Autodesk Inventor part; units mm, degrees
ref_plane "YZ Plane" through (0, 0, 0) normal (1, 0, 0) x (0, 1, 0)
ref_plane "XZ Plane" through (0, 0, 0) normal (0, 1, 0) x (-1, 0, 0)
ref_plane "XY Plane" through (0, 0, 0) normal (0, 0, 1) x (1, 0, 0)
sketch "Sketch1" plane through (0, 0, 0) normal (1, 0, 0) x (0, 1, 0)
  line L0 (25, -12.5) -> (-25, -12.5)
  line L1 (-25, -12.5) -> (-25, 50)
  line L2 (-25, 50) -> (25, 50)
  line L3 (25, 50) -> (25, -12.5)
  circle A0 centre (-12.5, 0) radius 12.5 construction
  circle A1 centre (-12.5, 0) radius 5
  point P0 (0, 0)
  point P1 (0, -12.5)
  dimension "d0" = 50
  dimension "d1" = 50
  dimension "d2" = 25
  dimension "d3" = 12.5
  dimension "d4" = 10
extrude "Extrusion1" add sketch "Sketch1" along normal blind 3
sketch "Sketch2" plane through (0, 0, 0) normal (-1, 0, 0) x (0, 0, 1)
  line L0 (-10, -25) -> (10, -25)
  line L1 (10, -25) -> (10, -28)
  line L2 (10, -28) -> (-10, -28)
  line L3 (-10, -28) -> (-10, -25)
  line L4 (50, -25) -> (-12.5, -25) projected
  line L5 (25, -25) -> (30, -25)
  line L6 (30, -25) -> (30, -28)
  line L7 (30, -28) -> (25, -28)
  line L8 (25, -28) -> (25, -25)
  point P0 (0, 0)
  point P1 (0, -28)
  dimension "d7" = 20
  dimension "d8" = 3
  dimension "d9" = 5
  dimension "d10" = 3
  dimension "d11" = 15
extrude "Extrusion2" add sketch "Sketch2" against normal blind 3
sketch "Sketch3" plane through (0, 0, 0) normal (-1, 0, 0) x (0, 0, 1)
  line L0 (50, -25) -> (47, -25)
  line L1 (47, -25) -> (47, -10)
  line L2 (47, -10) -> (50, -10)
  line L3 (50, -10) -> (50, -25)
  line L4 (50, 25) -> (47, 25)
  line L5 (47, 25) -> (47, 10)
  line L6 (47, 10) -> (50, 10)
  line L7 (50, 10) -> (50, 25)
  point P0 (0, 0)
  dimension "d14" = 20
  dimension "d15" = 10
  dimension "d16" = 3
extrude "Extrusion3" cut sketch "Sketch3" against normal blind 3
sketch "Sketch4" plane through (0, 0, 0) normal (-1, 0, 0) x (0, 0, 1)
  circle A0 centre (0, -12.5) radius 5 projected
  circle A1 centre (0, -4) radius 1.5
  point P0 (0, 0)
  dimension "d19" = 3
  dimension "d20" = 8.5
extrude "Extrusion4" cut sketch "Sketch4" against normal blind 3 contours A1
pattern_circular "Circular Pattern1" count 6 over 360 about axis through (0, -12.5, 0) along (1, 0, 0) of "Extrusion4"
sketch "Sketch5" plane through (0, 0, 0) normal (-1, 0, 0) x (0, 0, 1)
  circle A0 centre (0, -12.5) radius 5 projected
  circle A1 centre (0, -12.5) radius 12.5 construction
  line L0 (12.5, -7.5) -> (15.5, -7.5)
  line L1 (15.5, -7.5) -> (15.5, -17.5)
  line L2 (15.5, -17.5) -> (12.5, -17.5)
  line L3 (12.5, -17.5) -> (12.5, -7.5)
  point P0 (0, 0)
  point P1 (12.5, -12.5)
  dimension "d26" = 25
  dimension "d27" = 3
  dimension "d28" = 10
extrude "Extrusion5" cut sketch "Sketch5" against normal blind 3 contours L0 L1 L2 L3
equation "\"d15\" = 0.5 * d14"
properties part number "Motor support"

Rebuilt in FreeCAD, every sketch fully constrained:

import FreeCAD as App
import Part
import Sketcher

V = App.Vector
Q = App.Units.Quantity


def add_polygon(sketch, points):
    """Adds a closed chain of lines whose ends are joined by coincident constraints."""
    first, n = sketch.GeometryCount, len(points)
    for a, b in zip(points, points[1:] + points[:1]):
        sketch.addGeometry(Part.LineSegment(App.Vector(*a, 0), App.Vector(*b, 0)), False)
    for i in range(n):
        sketch.addConstraint(Sketcher.Constraint("Coincident", first + i, 2, first + (i + 1) % n, 1))

doc = App.newDocument("Part")
params = doc.addObject("Spreadsheet::Sheet", "Params")
for row, (alias, value) in enumerate([
    ("sketch1_diameter", "10 mm"),
    ("sketch1_width", "50 mm"),
    ("pad1_length", "3 mm"),
    ("sketch2_width", "3 mm"),
    ("sketch2_height", "5 mm"),
    ("sketch2_height2", "20 mm"),
    ("pad2_length", "3 mm"),
    ("sketch3_height", "3 mm"),
    ("sketch3_width", "15 mm"),
    ("pocket1_length", "3 mm"),
    ("sketch4_diameter", "3 mm"),
    ("pocket2_length", "3 mm"),
    ("sketch5_width", "10 mm"),
    ("sketch5_height", "3 mm"),
    ("pocket3_length", "3 mm"),
], start=1):
    params.set(f"A{row}", alias)
    params.set(f"B{row}", "=" + value)
    params.setAlias(f"B{row}", alias)

body = doc.addObject("PartDesign::Body", "Body")

sketch1 = body.newObject("Sketcher::SketchObject", "Sketch")
sketch1.AttachmentSupport = (doc.getObject("YZ_Plane"), [""])
sketch1.MapMode = "FlatFace"
add_polygon(sketch1, [(-25, -12), (25, -12), (25, 50), (-25, 50)])
sketch1.addGeometry(Part.Circle(V(-12, 0, 0), V(0, 0, 1), 5), False)
sketch1.addConstraint([
    Sketcher.Constraint("Horizontal", 0),
    Sketcher.Constraint("Vertical", 1),
    Sketcher.Constraint("Horizontal", 2),
    Sketcher.Constraint("Vertical", 3),
    Sketcher.Constraint("PointOnObject", 4, 3, -1),
    Sketcher.Constraint("Diameter", 4, Q("10 mm")),
    Sketcher.Constraint("DistanceX", 0, 1, 0, 2, Q("50 mm")),
    Sketcher.Constraint("DistanceX", -1, 1, 0, 2, Q("25 mm")),
    Sketcher.Constraint("DistanceY", -1, 1, 1, 2, Q("50 mm")),
    Sketcher.Constraint("DistanceX", 4, 3, -1, 1, Q("12.5 mm")),
    Sketcher.Constraint("DistanceY", 0, 2, -1, 1, Q("12.5 mm")),
])
sketch1.setExpression("Constraints[9]", "Params.sketch1_diameter")
sketch1.setExpression("Constraints[10]", "Params.sketch1_width")
pad1 = body.newObject("PartDesign::Pad", "Pad")
pad1.Profile = sketch1
pad1.setExpression("Length", "Params.pad1_length")

sketch2 = body.newObject("Sketcher::SketchObject", "Sketch001")
sketch2.AttachmentSupport = (doc.getObject("YZ_Plane"), [""])
sketch2.MapMode = "FlatFace"
add_polygon(sketch2, [(-25, 30), (-25, 25), (-28, 25), (-28, 30)])
add_polygon(sketch2, [(-25, 10), (-25, -10), (-28, -10), (-28, 10)])
sketch2.addConstraint([
    Sketcher.Constraint("Vertical", 0),
    Sketcher.Constraint("Horizontal", 1),
    Sketcher.Constraint("Vertical", 2),
    Sketcher.Constraint("Horizontal", 3),
    Sketcher.Constraint("Vertical", 4),
    Sketcher.Constraint("Horizontal", 5),
    Sketcher.Constraint("Vertical", 6),
    Sketcher.Constraint("Horizontal", 7),
    Sketcher.Constraint("Vertical", 3, 2, 4, 2),
    Sketcher.Constraint("Vertical", 2, 2, 5, 2),
    Sketcher.Constraint("DistanceX", 1, 2, 1, 1, Q("3 mm")),
    Sketcher.Constraint("DistanceY", 0, 2, 0, 1, Q("5 mm")),
    Sketcher.Constraint("DistanceY", 4, 2, 4, 1, Q("20 mm")),
    Sketcher.Constraint("DistanceY", 6, 2, 1, 2, Q("15 mm")),
    Sketcher.Constraint("DistanceX", 0, 2, -1, 1, Q("25 mm")),
    Sketcher.Constraint("DistanceY", -1, 1, 0, 2, Q("25 mm")),
])
sketch2.setExpression("Constraints[18]", "Params.sketch2_width")
sketch2.setExpression("Constraints[19]", "Params.sketch2_height")
sketch2.setExpression("Constraints[20]", "Params.sketch2_height2")
pad2 = body.newObject("PartDesign::Pad", "Pad001")
pad2.Profile = sketch2
pad2.setExpression("Length", "Params.pad2_length")

sketch3 = body.newObject("Sketcher::SketchObject", "Sketch002")
sketch3.AttachmentSupport = (doc.getObject("YZ_Plane"), [""])
sketch3.MapMode = "FlatFace"
add_polygon(sketch3, [(-25, 47), (-25, 50), (-10, 50), (-10, 47)])
add_polygon(sketch3, [(10, 50), (25, 50), (25, 47), (10, 47)])
sketch3.addConstraint([
    Sketcher.Constraint("Vertical", 0),
    Sketcher.Constraint("Horizontal", 1),
    Sketcher.Constraint("Vertical", 2),
    Sketcher.Constraint("Horizontal", 3),
    Sketcher.Constraint("Horizontal", 4),
    Sketcher.Constraint("Vertical", 5),
    Sketcher.Constraint("Horizontal", 6),
    Sketcher.Constraint("Vertical", 7),
    Sketcher.Constraint("Symmetric", 0, 2, 4, 2, -2),
    Sketcher.Constraint("Symmetric", 2, 2, 6, 2, -2),
    Sketcher.Constraint("DistanceY", 0, 1, 0, 2, Q("3 mm")),
    Sketcher.Constraint("DistanceX", 1, 2, -1, 1, Q("10 mm")),
    Sketcher.Constraint("DistanceX", 1, 1, 1, 2, Q("15 mm")),
    Sketcher.Constraint("DistanceY", -1, 1, 0, 2, Q("50 mm")),
])
sketch3.setExpression("Constraints[18]", "Params.sketch3_height")
sketch3.setExpression("Constraints[20]", "Params.sketch3_width")
pocket1 = body.newObject("PartDesign::Pocket", "Pocket")
pocket1.Profile = sketch3
pocket1.setExpression("Length", "Params.pocket1_length")
pocket1.Reversed = True

sketch4 = body.newObject("Sketcher::SketchObject", "Sketch003")
sketch4.AttachmentSupport = (doc.getObject("YZ_Plane"), [""])
sketch4.MapMode = "FlatFace"
sketch4.addGeometry(Part.Circle(V(-4, 0, 0), V(0, 0, 1), 1.5), False)
sketch4.addConstraint([
    Sketcher.Constraint("PointOnObject", 0, 3, -1),
    Sketcher.Constraint("Diameter", 0, Q("3 mm")),
    Sketcher.Constraint("DistanceX", 0, 3, -1, 1, Q("4 mm")),
])
sketch4.setExpression("Constraints[1]", "Params.sketch4_diameter")
pocket2 = body.newObject("PartDesign::Pocket", "Pocket001")
pocket2.Profile = sketch4
pocket2.setExpression("Length", "Params.pocket2_length")
pocket2.Reversed = True
doc.recompute()

datumline = body.newObject("PartDesign::Line", "DatumLine")
datumline.Placement = App.Placement(V(0, -12.5, 0), App.Rotation(V(0, 0, 1), V(1, 0, 0)))
polarpattern = body.newObject("PartDesign::PolarPattern", "PolarPattern")
polarpattern.Originals = [pocket2]
polarpattern.Axis = (datumline, [""])
polarpattern.Angle = 360
polarpattern.Occurrences = 6
body.Tip = polarpattern

sketch5 = body.newObject("Sketcher::SketchObject", "Sketch004")
sketch5.AttachmentSupport = (doc.getObject("YZ_Plane"), [""])
sketch5.MapMode = "FlatFace"
add_polygon(sketch5, [(-7.5, 15.5), (-7.5, 12.5), (-17.5, 12.5), (-17.5, 15.5)])
sketch5.addConstraint([
    Sketcher.Constraint("Vertical", 0),
    Sketcher.Constraint("Horizontal", 1),
    Sketcher.Constraint("Vertical", 2),
    Sketcher.Constraint("Horizontal", 3),
    Sketcher.Constraint("DistanceX", 1, 2, 1, 1, Q("10 mm")),
    Sketcher.Constraint("DistanceY", 0, 2, 0, 1, Q("3 mm")),
    Sketcher.Constraint("DistanceX", 0, 2, -1, 1, Q("7.5 mm")),
    Sketcher.Constraint("DistanceY", -1, 1, 0, 2, Q("12.5 mm")),
])
sketch5.setExpression("Constraints[8]", "Params.sketch5_width")
sketch5.setExpression("Constraints[9]", "Params.sketch5_height")
pocket3 = body.newObject("PartDesign::Pocket", "Pocket002")
pocket3.Profile = sketch5
pocket3.setExpression("Length", "Params.pocket3_length")
pocket3.Reversed = True

doc.recompute()
